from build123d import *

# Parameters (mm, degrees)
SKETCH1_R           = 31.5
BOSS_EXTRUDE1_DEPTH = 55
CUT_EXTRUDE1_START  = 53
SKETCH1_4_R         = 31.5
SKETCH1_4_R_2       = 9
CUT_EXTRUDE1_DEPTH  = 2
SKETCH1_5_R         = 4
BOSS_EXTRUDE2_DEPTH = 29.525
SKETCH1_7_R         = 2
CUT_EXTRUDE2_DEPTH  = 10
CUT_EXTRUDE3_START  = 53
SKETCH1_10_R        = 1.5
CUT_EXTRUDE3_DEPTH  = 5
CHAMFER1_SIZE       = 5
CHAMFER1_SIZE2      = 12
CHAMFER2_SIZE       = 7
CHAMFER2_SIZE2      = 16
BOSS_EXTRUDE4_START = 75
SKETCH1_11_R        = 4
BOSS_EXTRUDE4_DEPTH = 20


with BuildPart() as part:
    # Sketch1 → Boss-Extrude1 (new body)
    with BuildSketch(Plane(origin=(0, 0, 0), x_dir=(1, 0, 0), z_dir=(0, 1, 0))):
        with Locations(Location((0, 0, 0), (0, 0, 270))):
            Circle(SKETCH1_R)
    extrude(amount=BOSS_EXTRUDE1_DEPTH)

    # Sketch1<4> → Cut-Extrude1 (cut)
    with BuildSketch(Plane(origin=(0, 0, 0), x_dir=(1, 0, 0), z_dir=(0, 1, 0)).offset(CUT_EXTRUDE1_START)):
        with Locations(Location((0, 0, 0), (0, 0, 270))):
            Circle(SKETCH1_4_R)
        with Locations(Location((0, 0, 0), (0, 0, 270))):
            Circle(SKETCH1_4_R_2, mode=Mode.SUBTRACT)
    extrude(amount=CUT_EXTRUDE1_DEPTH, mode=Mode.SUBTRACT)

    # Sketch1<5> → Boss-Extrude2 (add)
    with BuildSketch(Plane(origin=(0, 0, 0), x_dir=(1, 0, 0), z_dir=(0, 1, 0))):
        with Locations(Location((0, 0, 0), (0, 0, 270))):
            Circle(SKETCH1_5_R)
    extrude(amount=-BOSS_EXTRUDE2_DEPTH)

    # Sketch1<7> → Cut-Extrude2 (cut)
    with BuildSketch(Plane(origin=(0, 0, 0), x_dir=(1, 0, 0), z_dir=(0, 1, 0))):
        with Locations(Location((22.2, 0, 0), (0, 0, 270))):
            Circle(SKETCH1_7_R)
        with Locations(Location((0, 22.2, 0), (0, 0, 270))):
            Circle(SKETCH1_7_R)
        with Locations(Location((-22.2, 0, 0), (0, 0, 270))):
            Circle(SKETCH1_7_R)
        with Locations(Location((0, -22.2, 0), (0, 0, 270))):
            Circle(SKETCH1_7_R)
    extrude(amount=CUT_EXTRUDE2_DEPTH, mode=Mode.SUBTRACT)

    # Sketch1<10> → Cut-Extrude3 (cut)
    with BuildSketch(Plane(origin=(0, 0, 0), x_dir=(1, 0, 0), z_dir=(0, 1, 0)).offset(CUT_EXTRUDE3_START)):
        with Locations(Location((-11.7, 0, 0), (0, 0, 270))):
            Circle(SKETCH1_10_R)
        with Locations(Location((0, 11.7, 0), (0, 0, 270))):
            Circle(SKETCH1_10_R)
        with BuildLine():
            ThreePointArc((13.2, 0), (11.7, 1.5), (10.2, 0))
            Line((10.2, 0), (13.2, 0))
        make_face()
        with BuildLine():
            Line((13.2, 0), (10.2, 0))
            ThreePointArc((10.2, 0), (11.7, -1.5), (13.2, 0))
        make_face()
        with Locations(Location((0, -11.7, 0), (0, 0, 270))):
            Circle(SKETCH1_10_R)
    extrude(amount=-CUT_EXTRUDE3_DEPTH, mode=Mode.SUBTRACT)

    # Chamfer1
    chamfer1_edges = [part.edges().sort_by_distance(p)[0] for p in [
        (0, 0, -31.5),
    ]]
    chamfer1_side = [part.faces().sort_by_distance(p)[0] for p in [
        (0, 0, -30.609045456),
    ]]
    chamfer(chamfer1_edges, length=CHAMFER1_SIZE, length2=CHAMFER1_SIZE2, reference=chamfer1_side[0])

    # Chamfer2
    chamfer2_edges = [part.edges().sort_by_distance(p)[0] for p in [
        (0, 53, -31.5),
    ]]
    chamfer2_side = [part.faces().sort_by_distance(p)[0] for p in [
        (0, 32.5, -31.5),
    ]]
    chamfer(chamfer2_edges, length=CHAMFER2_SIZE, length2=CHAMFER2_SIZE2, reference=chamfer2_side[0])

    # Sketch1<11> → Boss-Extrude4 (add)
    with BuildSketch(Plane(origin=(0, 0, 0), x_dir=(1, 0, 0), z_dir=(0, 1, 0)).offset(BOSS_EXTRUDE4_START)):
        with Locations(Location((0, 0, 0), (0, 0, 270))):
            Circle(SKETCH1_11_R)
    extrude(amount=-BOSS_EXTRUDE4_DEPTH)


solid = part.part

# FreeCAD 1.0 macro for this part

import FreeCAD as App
import Part
import Sketcher
Q = App.Units.Quantity


def edges_at(feature, points):
    """Names of the edges that pass closest to the given points."""
    edges = feature.Shape.Edges
    near = lambda p: min(range(len(edges)), key=lambda i: edges[i].distToShape(Part.Vertex(*p))[0])
    return sorted({f"Edge{near(p) + 1}" for p in points})

doc = App.newDocument("Part")
body = doc.addObject("PartDesign::Body", "Body")

# Sketch on XZ plane
sketch1 = body.newObject("Sketcher::SketchObject", "Sketch")
sketch1.AttachmentSupport = (doc.getObject("XZ_Plane"), [""])
sketch1.MapMode = "FlatFace"
sketch1.addGeometry(Part.Circle(App.Vector(0, 0, 0), App.Vector(0, 0, 1), 32), False)
sketch1.addConstraint(Sketcher.Constraint("Coincident", 0, 3, -1, 1))
sketch1.addConstraint(Sketcher.Constraint("Diameter", 0, Q("63 mm")))
pad1 = body.newObject("PartDesign::Pad", "Pad")
pad1.Profile = sketch1
pad1.Length = 55
pad1.Reversed = True

# Sketch on XZ plane
sketch2 = body.newObject("Sketcher::SketchObject", "Sketch001")
sketch2.AttachmentSupport = (doc.getObject("XZ_Plane"), [""])
sketch2.MapMode = "FlatFace"
sketch2.AttachmentOffset = App.Placement(App.Vector(0, 0, -53), App.Rotation())
sketch2.addGeometry(Part.Circle(App.Vector(0, 0, 0), App.Vector(0, 0, 1), 32), False)
sketch2.addGeometry(Part.Circle(App.Vector(0, 0, 0), App.Vector(0, 0, 1), 9), False)
sketch2.addConstraint(Sketcher.Constraint("Coincident", 0, 3, -1, 1))
sketch2.addConstraint(Sketcher.Constraint("Coincident", 1, 3, -1, 1))
sketch2.addConstraint(Sketcher.Constraint("Diameter", 0, Q("63 mm")))
sketch2.addConstraint(Sketcher.Constraint("Diameter", 1, Q("18 mm")))
pocket1 = body.newObject("PartDesign::Pocket", "Pocket")
pocket1.Profile = sketch2
pocket1.Length = 2

# Sketch on XZ plane
sketch3 = body.newObject("Sketcher::SketchObject", "Sketch002")
sketch3.AttachmentSupport = (doc.getObject("XZ_Plane"), [""])
sketch3.MapMode = "FlatFace"
sketch3.addGeometry(Part.Circle(App.Vector(0, 0, 0), App.Vector(0, 0, 1), 4), False)
sketch3.addConstraint(Sketcher.Constraint("Coincident", 0, 3, -1, 1))
sketch3.addConstraint(Sketcher.Constraint("Diameter", 0, Q("8 mm")))
pad2 = body.newObject("PartDesign::Pad", "Pad001")
pad2.Profile = sketch3
pad2.Length = 29.525

# Sketch on XZ plane
sketch4 = body.newObject("Sketcher::SketchObject", "Sketch003")
sketch4.AttachmentSupport = (doc.getObject("XZ_Plane"), [""])
sketch4.MapMode = "FlatFace"
sketch4.addGeometry(Part.Circle(App.Vector(22.2, 0, 0), App.Vector(0, 0, 1), 2), False)
sketch4.addGeometry(Part.Circle(App.Vector(0, -22.2, 0), App.Vector(0, 0, 1), 2), False)
sketch4.addGeometry(Part.Circle(App.Vector(-22.2, 0, 0), App.Vector(0, 0, 1), 2), False)
sketch4.addGeometry(Part.Circle(App.Vector(0, 22.2, 0), App.Vector(0, 0, 1), 2), False)
sketch4.addConstraint(Sketcher.Constraint("Equal", 0, 1))
sketch4.addConstraint(Sketcher.Constraint("Equal", 1, 2))
sketch4.addConstraint(Sketcher.Constraint("Equal", 2, 3))
sketch4.addConstraint(Sketcher.Constraint("Symmetric", 0, 3, 2, 3, -1, 1))
sketch4.addConstraint(Sketcher.Constraint("Symmetric", 1, 3, 3, 3, -1, 1))
sketch4.addConstraint(Sketcher.Constraint("PointOnObject", 0, 3, -1))
sketch4.addConstraint(Sketcher.Constraint("PointOnObject", 1, 3, -2))
sketch4.addConstraint(Sketcher.Constraint("Diameter", 0, Q("4 mm")))
sketch4.addConstraint(Sketcher.Constraint("DistanceX", -1, 1, 0, 3, Q("22.2 mm")))
sketch4.addConstraint(Sketcher.Constraint("DistanceY", 1, 3, -1, 1, Q("22.2 mm")))
pocket2 = body.newObject("PartDesign::Pocket", "Pocket001")
pocket2.Profile = sketch4
pocket2.Length = 10

# Sketch on XZ plane
sketch5 = body.newObject("Sketcher::SketchObject", "Sketch004")
sketch5.AttachmentSupport = (doc.getObject("XZ_Plane"), [""])
sketch5.MapMode = "FlatFace"
sketch5.AttachmentOffset = App.Placement(App.Vector(0, 0, -53), App.Rotation())
sketch5.addGeometry(Part.Circle(App.Vector(-11.7, 0, 0), App.Vector(0, 0, 1), 1.5), False)
sketch5.addGeometry(Part.Circle(App.Vector(0, -11.7, 0), App.Vector(0, 0, 1), 1.5), False)
sketch5.addGeometry(Part.Circle(App.Vector(11.7, 0, 0), App.Vector(0, 0, 1), 1.5), False)
sketch5.addGeometry(Part.Circle(App.Vector(0, 11.7, 0), App.Vector(0, 0, 1), 1.5), False)
sketch5.addConstraint(Sketcher.Constraint("Equal", 0, 1))
sketch5.addConstraint(Sketcher.Constraint("Equal", 1, 2))
sketch5.addConstraint(Sketcher.Constraint("Equal", 2, 3))
sketch5.addConstraint(Sketcher.Constraint("Symmetric", 0, 3, 2, 3, -1, 1))
sketch5.addConstraint(Sketcher.Constraint("Symmetric", 1, 3, 3, 3, -1, 1))
sketch5.addConstraint(Sketcher.Constraint("PointOnObject", 0, 3, -1))
sketch5.addConstraint(Sketcher.Constraint("PointOnObject", 1, 3, -2))
sketch5.addConstraint(Sketcher.Constraint("Diameter", 0, Q("3 mm")))
sketch5.addConstraint(Sketcher.Constraint("DistanceX", 0, 3, -1, 1, Q("11.7 mm")))
sketch5.addConstraint(Sketcher.Constraint("DistanceY", 1, 3, -1, 1, Q("11.7 mm")))
pocket3 = body.newObject("PartDesign::Pocket", "Pocket002")
pocket3.Profile = sketch5
pocket3.Length = 5
pocket3.Reversed = True
doc.recompute()

chamfer = body.newObject("PartDesign::Chamfer", "Chamfer")
chamfer.Base = (pocket3, edges_at(pocket3, [(0, 0, -31.5)]))
chamfer.ChamferType = "Two distances"
chamfer.Size = 5
chamfer.Size2 = 12
chamfer.FlipDirection = True
doc.recompute()

chamfer2 = body.newObject("PartDesign::Chamfer", "Chamfer001")
chamfer2.Base = (chamfer, edges_at(chamfer, [(0, 53, -31.5)]))
chamfer2.ChamferType = "Two distances"
chamfer2.Size = 7
chamfer2.Size2 = 16

# Sketch on XZ plane
sketch6 = body.newObject("Sketcher::SketchObject", "Sketch005")
sketch6.AttachmentSupport = (doc.getObject("XZ_Plane"), [""])
sketch6.MapMode = "FlatFace"
sketch6.AttachmentOffset = App.Placement(App.Vector(0, 0, -75), App.Rotation())
sketch6.addGeometry(Part.Circle(App.Vector(0, 0, 0), App.Vector(0, 0, 1), 4), False)
sketch6.addConstraint(Sketcher.Constraint("Coincident", 0, 3, -1, 1))
sketch6.addConstraint(Sketcher.Constraint("Diameter", 0, Q("8 mm")))
pad3 = body.newObject("PartDesign::Pad", "Pad002")
pad3.Profile = sketch6
pad3.Length = 20

doc.recompute()
